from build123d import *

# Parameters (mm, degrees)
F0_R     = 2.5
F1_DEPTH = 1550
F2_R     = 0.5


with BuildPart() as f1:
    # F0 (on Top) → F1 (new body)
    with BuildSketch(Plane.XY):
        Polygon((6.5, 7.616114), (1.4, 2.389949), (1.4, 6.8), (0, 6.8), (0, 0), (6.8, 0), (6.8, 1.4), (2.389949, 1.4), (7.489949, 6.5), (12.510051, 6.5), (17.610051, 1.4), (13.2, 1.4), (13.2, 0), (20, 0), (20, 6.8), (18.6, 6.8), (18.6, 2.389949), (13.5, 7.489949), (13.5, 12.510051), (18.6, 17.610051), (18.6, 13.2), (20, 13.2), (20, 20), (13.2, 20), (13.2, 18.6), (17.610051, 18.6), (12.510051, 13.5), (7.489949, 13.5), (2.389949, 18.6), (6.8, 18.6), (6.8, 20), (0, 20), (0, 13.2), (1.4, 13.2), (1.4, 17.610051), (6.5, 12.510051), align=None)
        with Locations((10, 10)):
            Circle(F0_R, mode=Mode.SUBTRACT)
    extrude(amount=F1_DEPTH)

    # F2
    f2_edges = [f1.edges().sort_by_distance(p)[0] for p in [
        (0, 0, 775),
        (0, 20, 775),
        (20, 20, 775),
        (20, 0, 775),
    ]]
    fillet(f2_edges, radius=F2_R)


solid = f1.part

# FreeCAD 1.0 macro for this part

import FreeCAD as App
import Part
import Sketcher

V = App.Vector
Q = App.Units.Quantity


def edges_at(feature, points):
    """Names of the edges that pass closest to the given points."""
    edges = feature.Shape.Edges
    near = lambda p: min(range(len(edges)), key=lambda i: edges[i].distToShape(Part.Vertex(*p))[0])
    return sorted({f"Edge{near(p) + 1}" for p in points})


def add_polygon(sketch, points):
    """Adds a closed chain of lines whose ends are joined by coincident constraints."""
    first, n = sketch.GeometryCount, len(points)
    for a, b in zip(points, points[1:] + points[:1]):
        sketch.addGeometry(Part.LineSegment(App.Vector(*a, 0), App.Vector(*b, 0)), False)
    for i in range(n):
        sketch.addConstraint(Sketcher.Constraint("Coincident", first + i, 2, first + (i + 1) % n, 1))

doc = App.newDocument("Part")
params = doc.addObject("Spreadsheet::Sheet", "Params")
for row, (alias, value) in enumerate([
    ("sketch1_diameter", "5 mm"),
    ("sketch1_width", "1.4 mm"),
    ("sketch1_width2", "6.8 mm"),
    ("pad1_length", "1550 mm"),
    ("fillet_radius", "0.5 mm"),
], start=1):
    params.set(f"A{row}", alias)
    params.set(f"B{row}", "=" + value)
    params.setAlias(f"B{row}", alias)

body = doc.addObject("PartDesign::Body", "Body")

# Sketch on XY plane
sketch1 = body.newObject("Sketcher::SketchObject", "Sketch")
sketch1.AttachmentSupport = (doc.getObject("XY_Plane"), [""])
sketch1.MapMode = "FlatFace"
add_polygon(sketch1, [(6.5, 7.616114), (1.4, 2.389949), (1.4, 6.8), (0, 6.8), (0, 0), (6.8, 0), (6.8, 1.4), (2.389949, 1.4), (7.489949, 6.5), (12.510051, 6.5), (17.610051, 1.4), (13.2, 1.4), (13.2, 0), (20, 0), (20, 6.8), (18.6, 6.8), (18.6, 2.389949), (13.5, 7.489949), (13.5, 12.510051), (18.6, 17.610051), (18.6, 13.2), (20, 13.2), (20, 20), (13.2, 20), (13.2, 18.6), (17.610051, 18.6), (12.510051, 13.5), (7.489949, 13.5), (2.389949, 18.6), (6.8, 18.6), (6.8, 20), (0, 20), (0, 13.2), (1.4, 13.2), (1.4, 17.610051), (6.5, 12.510051)])  # lines 0-35
sketch1.addGeometry(Part.Circle(V(10, 10, 0), V(0, 0, 1), 2.5), False)  # 36
sketch1.addConstraint([
    Sketcher.Constraint("Vertical", 1),
    Sketcher.Constraint("Horizontal", 2),
    Sketcher.Constraint("Vertical", 3),
    Sketcher.Constraint("Horizontal", 4),
    Sketcher.Constraint("Vertical", 5),
    Sketcher.Constraint("Horizontal", 6),
    Sketcher.Constraint("Horizontal", 8),
    Sketcher.Constraint("Horizontal", 10),
    Sketcher.Constraint("Vertical", 11),
    Sketcher.Constraint("Horizontal", 12),
    Sketcher.Constraint("Vertical", 13),
    Sketcher.Constraint("Horizontal", 14),
    Sketcher.Constraint("Vertical", 15),
    Sketcher.Constraint("Vertical", 17),
    Sketcher.Constraint("Vertical", 19),
    Sketcher.Constraint("Horizontal", 20),
    Sketcher.Constraint("Vertical", 21),
    Sketcher.Constraint("Horizontal", 22),
    Sketcher.Constraint("Vertical", 23),
    Sketcher.Constraint("Horizontal", 24),
    Sketcher.Constraint("Horizontal", 26),
    Sketcher.Constraint("Horizontal", 28),
    Sketcher.Constraint("Vertical", 29),
    Sketcher.Constraint("Horizontal", 30),
    Sketcher.Constraint("Vertical", 31),
    Sketcher.Constraint("Horizontal", 32),
    Sketcher.Constraint("Vertical", 33),
    Sketcher.Constraint("Vertical", 35),
    Sketcher.Constraint("Coincident", 3, 2, -1, 1),
    Sketcher.Constraint("PointOnObject", 11, 2, -1),
    Sketcher.Constraint("PointOnObject", 30, 2, -2),
    Sketcher.Constraint("Perpendicular", 7, 9),
    Sketcher.Constraint("Parallel", 9, 16),
    Sketcher.Constraint("Perpendicular", 16, 18),
    Sketcher.Constraint("Parallel", 18, 25),
    Sketcher.Constraint("Perpendicular", 25, 27),
    Sketcher.Constraint("Parallel", 27, 34),
    Sketcher.Constraint("Horizontal", 6, 2, 9, 2),
    Sketcher.Constraint("Horizontal", 2, 2, 13, 2),
    Sketcher.Constraint("Horizontal", 0, 2, 15, 2),
    Sketcher.Constraint("Horizontal", 24, 2, 27, 2),
    Sketcher.Constraint("Horizontal", 22, 2, 29, 2),
    Sketcher.Constraint("Horizontal", 20, 2, 31, 2),
    Sketcher.Constraint("Horizontal", 18, 2, 33, 2),
    Sketcher.Constraint("Horizontal", 17, 2, 34, 2),
    Sketcher.Constraint("Vertical", 15, 2, 18, 2),
    Sketcher.Constraint("Vertical", 13, 2, 20, 2),
    Sketcher.Constraint("Vertical", 11, 2, 22, 2),
    Sketcher.Constraint("Vertical", 9, 2, 24, 2),
    Sketcher.Constraint("Vertical", 8, 2, 25, 2),
    Sketcher.Constraint("Vertical", 7, 2, 26, 2),
    Sketcher.Constraint("Vertical", 6, 2, 27, 2),
    Sketcher.Constraint("Vertical", 5, 2, 28, 2),
    Sketcher.Constraint("Vertical", 1, 2, 32, 2),
    Sketcher.Constraint("Equal", 6, 10),
    Sketcher.Constraint("Equal", 4, 12),
    Sketcher.Constraint("Equal", 2, 14),
    Sketcher.Constraint("Equal", 28, 1),
    Sketcher.Constraint("Equal", 30, 3),
    Sketcher.Constraint("Equal", 32, 5),
    Sketcher.Constraint("Equal", 26, 17),
    Sketcher.Constraint("Equal", 15, 19),
    Sketcher.Constraint("Equal", 13, 21),
    Sketcher.Constraint("Equal", 11, 23),
    Sketcher.Constraint("Equal", 9, 16),
    Sketcher.Constraint("Diameter", 36, Q("5 mm")),
    Sketcher.Constraint("DistanceX", 2, 2, 2, 1, Q("1.4 mm")),
    Sketcher.Constraint("DistanceX", 4, 1, 4, 2, Q("6.8 mm")),
    Sketcher.Constraint("DistanceX", -1, 1, 36, 3, Q("10 mm")),
    Sketcher.Constraint("DistanceY", -1, 1, 36, 3, Q("10 mm")),
    Sketcher.Constraint("DistanceX", -1, 1, 12, 2, Q("20 mm")),
    Sketcher.Constraint("Angle", 0, Q("-134.299995 deg")),
    Sketcher.Constraint("DistanceY", 7, 2, 26, 2, Q("7 mm")),
    Sketcher.Constraint("DistanceX", 6, 2, 6, 1, Q("4.410051 mm")),
])
sketch1.setExpression("Constraints[101]", "Params.sketch1_diameter")
sketch1.setExpression("Constraints[102]", "Params.sketch1_width")
sketch1.setExpression("Constraints[103]", "Params.sketch1_width2")
pad1 = body.newObject("PartDesign::Pad", "Pad")
pad1.Profile = sketch1
pad1.setExpression("Length", "Params.pad1_length")
doc.recompute()

fillet = body.newObject("PartDesign::Fillet", "Fillet")
fillet.Base = (pad1, edges_at(pad1, [
    (0, 0, 775),
    (0, 20, 775),
    (20, 20, 775),
    (20, 0, 775),
]))
fillet.setExpression("Radius", "Params.fillet_radius")

doc.recompute()
